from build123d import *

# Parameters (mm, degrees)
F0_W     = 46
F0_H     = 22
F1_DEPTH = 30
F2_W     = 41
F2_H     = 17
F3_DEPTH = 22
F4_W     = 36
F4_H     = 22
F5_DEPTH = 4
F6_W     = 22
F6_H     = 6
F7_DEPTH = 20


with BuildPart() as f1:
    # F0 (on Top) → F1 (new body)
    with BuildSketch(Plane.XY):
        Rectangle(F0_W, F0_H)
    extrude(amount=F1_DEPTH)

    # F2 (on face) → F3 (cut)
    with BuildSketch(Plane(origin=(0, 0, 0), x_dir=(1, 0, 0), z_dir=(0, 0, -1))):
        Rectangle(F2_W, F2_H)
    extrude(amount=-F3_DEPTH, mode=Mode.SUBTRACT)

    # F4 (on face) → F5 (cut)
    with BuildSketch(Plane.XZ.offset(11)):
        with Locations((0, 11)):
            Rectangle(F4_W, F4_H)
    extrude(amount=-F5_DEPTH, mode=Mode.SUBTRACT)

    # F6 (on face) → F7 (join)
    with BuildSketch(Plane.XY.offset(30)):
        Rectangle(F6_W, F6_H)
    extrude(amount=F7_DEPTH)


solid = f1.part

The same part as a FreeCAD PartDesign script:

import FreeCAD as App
import Part
import Sketcher
Q = App.Units.Quantity

doc = App.newDocument("Part")
params = doc.addObject("Spreadsheet::Sheet", "Params")
for row, (alias, value) in enumerate([
    ("sketch1_width", "46 mm"),
    ("sketch1_height", "22 mm"),
    ("pad1_length", "30 mm"),
    ("sketch2_width", "41 mm"),
    ("sketch2_height", "17 mm"),
    ("pocket1_length", "22 mm"),
    ("sketch3_width", "36 mm"),
    ("sketch3_height", "22 mm"),
    ("pocket2_length", "4 mm"),
    ("sketch4_width", "22 mm"),
    ("sketch4_height", "6 mm"),
    ("pad2_length", "20 mm"),
], start=1):
    params.set(f"A{row}", alias)
    params.set(f"B{row}", "=" + value)
    params.setAlias(f"B{row}", alias)

body = doc.addObject("PartDesign::Body", "Body")

# Sketch on XY plane
sketch1 = body.newObject("Sketcher::SketchObject", "Sketch")
sketch1.AttachmentSupport = (doc.getObject("XY_Plane"), [""])
sketch1.MapMode = "FlatFace"
sketch1.addGeometry([
    Part.LineSegment(App.Vector(-23, 11, 0), App.Vector(-23, -11, 0)),
    Part.LineSegment(App.Vector(-23, -11, 0), App.Vector(23, -11, 0)),
    Part.LineSegment(App.Vector(23, -11, 0), App.Vector(23, 11, 0)),
    Part.LineSegment(App.Vector(23, 11, 0), App.Vector(-23, 11, 0)),
], False)
sketch1.addConstraint([
    Sketcher.Constraint("Coincident", 0, 2, 1, 1),
    Sketcher.Constraint("Coincident", 1, 2, 2, 1),
    Sketcher.Constraint("Coincident", 2, 2, 3, 1),
    Sketcher.Constraint("Coincident", 3, 2, 0, 1),
    Sketcher.Constraint("Vertical", 0),
    Sketcher.Constraint("Horizontal", 1),
    Sketcher.Constraint("Vertical", 2),
    Sketcher.Constraint("Horizontal", 3),
    Sketcher.Constraint("Symmetric", 0, 2, 2, 2, -1, 1),
    Sketcher.Constraint("DistanceX", 1, 1, 1, 2, Q("46 mm")),
    Sketcher.Constraint("DistanceY", 0, 2, 0, 1, Q("22 mm")),
])
sketch1.setExpression("Constraints[9]", "Params.sketch1_width")
sketch1.setExpression("Constraints[10]", "Params.sketch1_height")
pad1 = body.newObject("PartDesign::Pad", "Pad")
pad1.Profile = sketch1
pad1.setExpression("Length", "Params.pad1_length")

# Sketch on XY plane
sketch2 = body.newObject("Sketcher::SketchObject", "Sketch001")
sketch2.AttachmentSupport = (doc.getObject("XY_Plane"), [""])
sketch2.MapMode = "FlatFace"
sketch2.addGeometry([
    Part.LineSegment(App.Vector(-20.5, -8.5, 0), App.Vector(-20.5, 8.5, 0)),
    Part.LineSegment(App.Vector(-20.5, 8.5, 0), App.Vector(20.5, 8.5, 0)),
    Part.LineSegment(App.Vector(20.5, 8.5, 0), App.Vector(20.5, -8.5, 0)),
    Part.LineSegment(App.Vector(20.5, -8.5, 0), App.Vector(-20.5, -8.5, 0)),
], False)
sketch2.addConstraint([
    Sketcher.Constraint("Coincident", 0, 2, 1, 1),
    Sketcher.Constraint("Coincident", 1, 2, 2, 1),
    Sketcher.Constraint("Coincident", 2, 2, 3, 1),
    Sketcher.Constraint("Coincident", 3, 2, 0, 1),
    Sketcher.Constraint("Vertical", 0),
    Sketcher.Constraint("Horizontal", 1),
    Sketcher.Constraint("Vertical", 2),
    Sketcher.Constraint("Horizontal", 3),
    Sketcher.Constraint("Symmetric", 0, 2, 2, 2, -1, 1),
    Sketcher.Constraint("DistanceX", 1, 1, 1, 2, Q("41 mm")),
    Sketcher.Constraint("DistanceY", 0, 1, 0, 2, Q("17 mm")),
])
sketch2.setExpression("Constraints[9]", "Params.sketch2_width")
sketch2.setExpression("Constraints[10]", "Params.sketch2_height")
pocket1 = body.newObject("PartDesign::Pocket", "Pocket")
pocket1.Profile = sketch2
pocket1.setExpression("Length", "Params.pocket1_length")
pocket1.Reversed = True

# Sketch on XZ plane
sketch3 = body.newObject("Sketcher::SketchObject", "Sketch002")
sketch3.AttachmentSupport = (doc.getObject("XZ_Plane"), [""])
sketch3.MapMode = "FlatFace"
sketch3.AttachmentOffset = App.Placement(App.Vector(0, 0, 11), App.Rotation())
sketch3.addGeometry([
    Part.LineSegment(App.Vector(-18, 22, 0), App.Vector(-18, 0, 0)),
    Part.LineSegment(App.Vector(-18, 0, 0), App.Vector(18, 0, 0)),
    Part.LineSegment(App.Vector(18, 0, 0), App.Vector(18, 22, 0)),
    Part.LineSegment(App.Vector(18, 22, 0), App.Vector(-18, 22, 0)),
], False)
sketch3.addConstraint([
    Sketcher.Constraint("Coincident", 0, 2, 1, 1),
    Sketcher.Constraint("Coincident", 1, 2, 2, 1),
    Sketcher.Constraint("Coincident", 2, 2, 3, 1),
    Sketcher.Constraint("Coincident", 3, 2, 0, 1),
    Sketcher.Constraint("Vertical", 0),
    Sketcher.Constraint("Horizontal", 1),
    Sketcher.Constraint("Vertical", 2),
    Sketcher.Constraint("Horizontal", 3),
    Sketcher.Constraint("Symmetric", 0, 2, 1, 2, -1, 1),
    Sketcher.Constraint("DistanceX", 1, 1, 1, 2, Q("36 mm")),
    Sketcher.Constraint("DistanceY", 0, 2, 0, 1, Q("22 mm")),
])
sketch3.setExpression("Constraints[9]", "Params.sketch3_width")
sketch3.setExpression("Constraints[10]", "Params.sketch3_height")
pocket2 = body.newObject("PartDesign::Pocket", "Pocket001")
pocket2.Profile = sketch3
pocket2.setExpression("Length", "Params.pocket2_length")

# Sketch on XY plane
sketch4 = body.newObject("Sketcher::SketchObject", "Sketch003")
sketch4.AttachmentSupport = (doc.getObject("XY_Plane"), [""])
sketch4.MapMode = "FlatFace"
sketch4.AttachmentOffset = App.Placement(App.Vector(0, 0, 30), App.Rotation())
sketch4.addGeometry([
    Part.LineSegment(App.Vector(-11, 3, 0), App.Vector(-11, -3, 0)),
    Part.LineSegment(App.Vector(-11, -3, 0), App.Vector(11, -3, 0)),
    Part.LineSegment(App.Vector(11, -3, 0), App.Vector(11, 3, 0)),
    Part.LineSegment(App.Vector(11, 3, 0), App.Vector(-11, 3, 0)),
], False)
sketch4.addConstraint([
    Sketcher.Constraint("Coincident", 0, 2, 1, 1),
    Sketcher.Constraint("Coincident", 1, 2, 2, 1),
    Sketcher.Constraint("Coincident", 2, 2, 3, 1),
    Sketcher.Constraint("Coincident", 3, 2, 0, 1),
    Sketcher.Constraint("Vertical", 0),
    Sketcher.Constraint("Horizontal", 1),
    Sketcher.Constraint("Vertical", 2),
    Sketcher.Constraint("Horizontal", 3),
    Sketcher.Constraint("Symmetric", 0, 2, 2, 2, -1, 1),
    Sketcher.Constraint("DistanceX", 1, 1, 1, 2, Q("22 mm")),
    Sketcher.Constraint("DistanceY", 0, 2, 0, 1, Q("6 mm")),
])
sketch4.setExpression("Constraints[9]", "Params.sketch4_width")
sketch4.setExpression("Constraints[10]", "Params.sketch4_height")
pad2 = body.newObject("PartDesign::Pad", "Pad001")
pad2.Profile = sketch4
pad2.setExpression("Length", "Params.pad2_length")

doc.recompute()
